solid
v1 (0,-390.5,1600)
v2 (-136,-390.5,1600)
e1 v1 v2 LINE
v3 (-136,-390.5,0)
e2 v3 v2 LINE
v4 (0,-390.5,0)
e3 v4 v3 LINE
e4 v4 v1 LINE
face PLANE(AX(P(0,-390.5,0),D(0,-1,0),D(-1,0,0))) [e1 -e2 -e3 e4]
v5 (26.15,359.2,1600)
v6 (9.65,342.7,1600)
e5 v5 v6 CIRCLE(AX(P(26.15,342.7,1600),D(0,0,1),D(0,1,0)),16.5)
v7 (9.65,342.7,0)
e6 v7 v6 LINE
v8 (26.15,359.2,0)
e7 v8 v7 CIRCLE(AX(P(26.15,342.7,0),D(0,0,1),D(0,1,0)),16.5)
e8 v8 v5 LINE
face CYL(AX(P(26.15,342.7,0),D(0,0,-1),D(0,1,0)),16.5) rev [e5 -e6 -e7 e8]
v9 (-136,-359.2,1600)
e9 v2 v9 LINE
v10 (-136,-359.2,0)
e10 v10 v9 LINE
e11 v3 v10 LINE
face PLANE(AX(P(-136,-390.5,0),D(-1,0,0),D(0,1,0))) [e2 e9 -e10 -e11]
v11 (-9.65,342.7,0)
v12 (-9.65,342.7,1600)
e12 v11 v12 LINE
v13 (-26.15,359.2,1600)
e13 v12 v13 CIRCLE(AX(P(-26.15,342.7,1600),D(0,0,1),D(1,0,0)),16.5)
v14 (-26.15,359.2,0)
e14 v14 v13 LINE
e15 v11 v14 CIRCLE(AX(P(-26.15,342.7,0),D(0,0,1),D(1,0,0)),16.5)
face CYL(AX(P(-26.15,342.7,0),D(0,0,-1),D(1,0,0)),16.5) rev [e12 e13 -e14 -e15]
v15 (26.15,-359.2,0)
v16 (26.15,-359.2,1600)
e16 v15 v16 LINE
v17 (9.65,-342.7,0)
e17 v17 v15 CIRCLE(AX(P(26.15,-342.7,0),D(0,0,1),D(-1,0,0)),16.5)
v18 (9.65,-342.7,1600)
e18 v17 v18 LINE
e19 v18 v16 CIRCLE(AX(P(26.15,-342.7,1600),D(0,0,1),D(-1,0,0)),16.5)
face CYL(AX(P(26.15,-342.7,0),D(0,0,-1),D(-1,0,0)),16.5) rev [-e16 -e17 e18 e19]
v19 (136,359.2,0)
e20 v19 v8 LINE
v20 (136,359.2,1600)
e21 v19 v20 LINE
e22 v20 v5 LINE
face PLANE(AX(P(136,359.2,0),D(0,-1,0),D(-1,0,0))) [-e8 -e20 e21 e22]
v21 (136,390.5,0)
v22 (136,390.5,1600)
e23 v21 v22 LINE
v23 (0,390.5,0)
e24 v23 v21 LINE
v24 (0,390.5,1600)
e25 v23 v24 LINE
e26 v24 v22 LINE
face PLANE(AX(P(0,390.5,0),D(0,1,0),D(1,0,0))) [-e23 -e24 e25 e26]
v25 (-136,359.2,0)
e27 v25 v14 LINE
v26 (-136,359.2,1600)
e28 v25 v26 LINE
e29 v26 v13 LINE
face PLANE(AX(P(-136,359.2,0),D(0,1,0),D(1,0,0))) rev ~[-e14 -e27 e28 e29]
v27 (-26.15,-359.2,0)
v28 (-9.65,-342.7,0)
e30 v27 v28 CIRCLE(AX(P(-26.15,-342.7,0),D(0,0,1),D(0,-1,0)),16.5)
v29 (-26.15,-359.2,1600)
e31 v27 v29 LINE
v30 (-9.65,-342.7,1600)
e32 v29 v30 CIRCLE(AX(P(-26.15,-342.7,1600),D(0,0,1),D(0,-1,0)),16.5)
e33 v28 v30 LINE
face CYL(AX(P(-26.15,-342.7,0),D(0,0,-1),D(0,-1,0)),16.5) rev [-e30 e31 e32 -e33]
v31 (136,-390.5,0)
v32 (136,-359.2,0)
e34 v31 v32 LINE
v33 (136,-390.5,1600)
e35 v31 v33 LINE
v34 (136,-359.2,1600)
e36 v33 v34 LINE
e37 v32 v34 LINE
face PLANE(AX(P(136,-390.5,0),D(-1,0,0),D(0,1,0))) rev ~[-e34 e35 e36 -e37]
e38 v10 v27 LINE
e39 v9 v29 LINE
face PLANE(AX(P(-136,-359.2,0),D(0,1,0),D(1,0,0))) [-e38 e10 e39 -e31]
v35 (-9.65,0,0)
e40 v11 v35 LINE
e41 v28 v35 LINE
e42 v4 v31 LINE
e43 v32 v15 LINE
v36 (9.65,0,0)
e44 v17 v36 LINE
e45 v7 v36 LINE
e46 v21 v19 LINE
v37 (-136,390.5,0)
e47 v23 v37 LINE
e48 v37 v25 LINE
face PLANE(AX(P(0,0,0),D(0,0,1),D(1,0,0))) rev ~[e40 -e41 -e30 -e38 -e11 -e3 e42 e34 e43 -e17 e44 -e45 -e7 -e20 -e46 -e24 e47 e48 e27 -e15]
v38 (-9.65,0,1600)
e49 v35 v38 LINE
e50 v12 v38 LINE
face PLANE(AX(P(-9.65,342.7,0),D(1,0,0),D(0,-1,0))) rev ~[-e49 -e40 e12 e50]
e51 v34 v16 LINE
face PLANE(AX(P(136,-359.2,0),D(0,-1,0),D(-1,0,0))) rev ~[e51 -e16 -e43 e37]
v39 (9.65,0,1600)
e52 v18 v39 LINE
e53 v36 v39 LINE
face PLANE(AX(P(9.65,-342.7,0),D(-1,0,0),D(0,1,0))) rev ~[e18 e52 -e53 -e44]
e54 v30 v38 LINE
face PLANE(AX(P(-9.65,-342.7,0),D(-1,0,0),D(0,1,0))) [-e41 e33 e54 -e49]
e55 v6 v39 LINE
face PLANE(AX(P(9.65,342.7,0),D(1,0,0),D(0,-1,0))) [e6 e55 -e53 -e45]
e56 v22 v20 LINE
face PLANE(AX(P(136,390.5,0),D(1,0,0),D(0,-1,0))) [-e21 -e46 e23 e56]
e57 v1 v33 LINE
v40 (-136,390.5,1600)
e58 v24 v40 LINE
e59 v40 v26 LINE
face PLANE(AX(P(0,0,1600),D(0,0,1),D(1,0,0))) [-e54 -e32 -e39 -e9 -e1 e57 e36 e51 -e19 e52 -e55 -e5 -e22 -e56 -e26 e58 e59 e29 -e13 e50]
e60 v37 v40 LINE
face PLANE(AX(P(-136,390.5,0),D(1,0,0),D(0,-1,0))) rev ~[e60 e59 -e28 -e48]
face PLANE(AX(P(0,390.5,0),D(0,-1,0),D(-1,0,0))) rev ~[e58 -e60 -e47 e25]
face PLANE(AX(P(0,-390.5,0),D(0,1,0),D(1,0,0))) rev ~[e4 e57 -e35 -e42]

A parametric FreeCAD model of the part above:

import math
import FreeCAD as App
import Part
import Sketcher

V = App.Vector

doc = App.newDocument("Part")
body = doc.addObject("PartDesign::Body", "Body")

# Sketch on XY plane
sketch1 = body.newObject("Sketcher::SketchObject", "Sketch")
sketch1.AttachmentSupport = (doc.getObject("XY_Plane"), [""])
sketch1.MapMode = "FlatFace"
sketch1.addGeometry([
    Part.LineSegment(V(-136, -359, 0), V(-136, -390, 0)),  # 0
    Part.LineSegment(V(-136, -390, 0), V(136, -390, 0)),  # 1
    Part.LineSegment(V(136, -390, 0), V(136, -359, 0)),  # 2
    Part.LineSegment(V(136, -359, 0), V(26, -359, 0)),  # 3
    Part.ArcOfCircle(Part.Circle(V(26, -343, 0), V(0, 0, 1), 16), math.radians(180), math.radians(270)),  # 4
    Part.LineSegment(V(10, -343, 0), V(10, 343, 0)),  # 5
    Part.ArcOfCircle(Part.Circle(V(26, 343, 0), V(0, 0, 1), 16), math.radians(90), math.radians(180)),  # 6
    Part.LineSegment(V(26, 359, 0), V(136, 359, 0)),  # 7
    Part.LineSegment(V(136, 359, 0), V(136, 390, 0)),  # 8
    Part.LineSegment(V(136, 390, 0), V(-136, 390, 0)),  # 9
    Part.LineSegment(V(-136, 390, 0), V(-136, 359, 0)),  # 10
    Part.LineSegment(V(-136, 359, 0), V(-26, 359, 0)),  # 11
    Part.ArcOfCircle(Part.Circle(V(-26, 343, 0), V(0, 0, 1), 16), math.radians(0), math.radians(90)),  # 12
    Part.LineSegment(V(-10, 343, 0), V(-10, -343, 0)),  # 13
    Part.ArcOfCircle(Part.Circle(V(-26, -343, 0), V(0, 0, 1), 16), math.radians(-90), math.radians(0)),  # 14
    Part.LineSegment(V(-26, -359, 0), V(-136, -359, 0)),  # 15
], False)
sketch1.addConstraint([
    Sketcher.Constraint("Coincident", 0, 2, 1, 1),
    Sketcher.Constraint("Coincident", 1, 2, 2, 1),
    Sketcher.Constraint("Coincident", 2, 2, 3, 1),
    Sketcher.Constraint("Tangent", 3, 2, 4, 2),
    Sketcher.Constraint("Tangent", 4, 1, 5, 1),
    Sketcher.Constraint("Tangent", 5, 2, 6, 2),
    Sketcher.Constraint("Tangent", 6, 1, 7, 1),
    Sketcher.Constraint("Coincident", 7, 2, 8, 1),
    Sketcher.Constraint("Coincident", 8, 2, 9, 1),
    Sketcher.Constraint("Coincident", 9, 2, 10, 1),
    Sketcher.Constraint("Coincident", 10, 2, 11, 1),
    Sketcher.Constraint("Tangent", 11, 2, 12, 2),
    Sketcher.Constraint("Tangent", 12, 1, 13, 1),
    Sketcher.Constraint("Tangent", 13, 2, 14, 2),
    Sketcher.Constraint("Tangent", 14, 1, 15, 1),
    Sketcher.Constraint("Coincident", 15, 2, 0, 1),
    Sketcher.Constraint("Vertical", 0),
    Sketcher.Constraint("Horizontal", 1),
    Sketcher.Constraint("Vertical", 2),
    Sketcher.Constraint("Horizontal", 3),
    Sketcher.Constraint("Vertical", 5),
    Sketcher.Constraint("Horizontal", 7),
    Sketcher.Constraint("Vertical", 8),
    Sketcher.Constraint("Horizontal", 9),
    Sketcher.Constraint("Vertical", 10),
    Sketcher.Constraint("Horizontal", 11),
    Sketcher.Constraint("Vertical", 13),
    Sketcher.Constraint("Horizontal", 15),
    Sketcher.Constraint("Equal", 4, 6),
    Sketcher.Constraint("Equal", 6, 12),
    Sketcher.Constraint("Equal", 12, 14),
    Sketcher.Constraint("Symmetric", 4, 3, 12, 3, -1, 1),
    Sketcher.Constraint("Symmetric", 0, 2, 8, 2, -1, 1),
    Sketcher.Constraint("Symmetric", 7, 2, 10, 2, -2),
    Sketcher.Constraint("Symmetric", 2, 2, 15, 2, -2),
    Sketcher.Constraint("Radius", 4, 16.5),
    Sketcher.Constraint("DistanceY", 0, 2, 0, 1, 31.3),
    Sketcher.Constraint("DistanceX", 0, 2, -1, 1, 136.0),
    Sketcher.Constraint("DistanceY", 0, 2, -1, 1, 390.5),
    Sketcher.Constraint("DistanceX", -1, 1, 4, 1, 9.65),
])
pad1 = body.newObject("PartDesign::Pad", "Pad")
pad1.Profile = sketch1
pad1.Length = 1600

doc.recompute()
